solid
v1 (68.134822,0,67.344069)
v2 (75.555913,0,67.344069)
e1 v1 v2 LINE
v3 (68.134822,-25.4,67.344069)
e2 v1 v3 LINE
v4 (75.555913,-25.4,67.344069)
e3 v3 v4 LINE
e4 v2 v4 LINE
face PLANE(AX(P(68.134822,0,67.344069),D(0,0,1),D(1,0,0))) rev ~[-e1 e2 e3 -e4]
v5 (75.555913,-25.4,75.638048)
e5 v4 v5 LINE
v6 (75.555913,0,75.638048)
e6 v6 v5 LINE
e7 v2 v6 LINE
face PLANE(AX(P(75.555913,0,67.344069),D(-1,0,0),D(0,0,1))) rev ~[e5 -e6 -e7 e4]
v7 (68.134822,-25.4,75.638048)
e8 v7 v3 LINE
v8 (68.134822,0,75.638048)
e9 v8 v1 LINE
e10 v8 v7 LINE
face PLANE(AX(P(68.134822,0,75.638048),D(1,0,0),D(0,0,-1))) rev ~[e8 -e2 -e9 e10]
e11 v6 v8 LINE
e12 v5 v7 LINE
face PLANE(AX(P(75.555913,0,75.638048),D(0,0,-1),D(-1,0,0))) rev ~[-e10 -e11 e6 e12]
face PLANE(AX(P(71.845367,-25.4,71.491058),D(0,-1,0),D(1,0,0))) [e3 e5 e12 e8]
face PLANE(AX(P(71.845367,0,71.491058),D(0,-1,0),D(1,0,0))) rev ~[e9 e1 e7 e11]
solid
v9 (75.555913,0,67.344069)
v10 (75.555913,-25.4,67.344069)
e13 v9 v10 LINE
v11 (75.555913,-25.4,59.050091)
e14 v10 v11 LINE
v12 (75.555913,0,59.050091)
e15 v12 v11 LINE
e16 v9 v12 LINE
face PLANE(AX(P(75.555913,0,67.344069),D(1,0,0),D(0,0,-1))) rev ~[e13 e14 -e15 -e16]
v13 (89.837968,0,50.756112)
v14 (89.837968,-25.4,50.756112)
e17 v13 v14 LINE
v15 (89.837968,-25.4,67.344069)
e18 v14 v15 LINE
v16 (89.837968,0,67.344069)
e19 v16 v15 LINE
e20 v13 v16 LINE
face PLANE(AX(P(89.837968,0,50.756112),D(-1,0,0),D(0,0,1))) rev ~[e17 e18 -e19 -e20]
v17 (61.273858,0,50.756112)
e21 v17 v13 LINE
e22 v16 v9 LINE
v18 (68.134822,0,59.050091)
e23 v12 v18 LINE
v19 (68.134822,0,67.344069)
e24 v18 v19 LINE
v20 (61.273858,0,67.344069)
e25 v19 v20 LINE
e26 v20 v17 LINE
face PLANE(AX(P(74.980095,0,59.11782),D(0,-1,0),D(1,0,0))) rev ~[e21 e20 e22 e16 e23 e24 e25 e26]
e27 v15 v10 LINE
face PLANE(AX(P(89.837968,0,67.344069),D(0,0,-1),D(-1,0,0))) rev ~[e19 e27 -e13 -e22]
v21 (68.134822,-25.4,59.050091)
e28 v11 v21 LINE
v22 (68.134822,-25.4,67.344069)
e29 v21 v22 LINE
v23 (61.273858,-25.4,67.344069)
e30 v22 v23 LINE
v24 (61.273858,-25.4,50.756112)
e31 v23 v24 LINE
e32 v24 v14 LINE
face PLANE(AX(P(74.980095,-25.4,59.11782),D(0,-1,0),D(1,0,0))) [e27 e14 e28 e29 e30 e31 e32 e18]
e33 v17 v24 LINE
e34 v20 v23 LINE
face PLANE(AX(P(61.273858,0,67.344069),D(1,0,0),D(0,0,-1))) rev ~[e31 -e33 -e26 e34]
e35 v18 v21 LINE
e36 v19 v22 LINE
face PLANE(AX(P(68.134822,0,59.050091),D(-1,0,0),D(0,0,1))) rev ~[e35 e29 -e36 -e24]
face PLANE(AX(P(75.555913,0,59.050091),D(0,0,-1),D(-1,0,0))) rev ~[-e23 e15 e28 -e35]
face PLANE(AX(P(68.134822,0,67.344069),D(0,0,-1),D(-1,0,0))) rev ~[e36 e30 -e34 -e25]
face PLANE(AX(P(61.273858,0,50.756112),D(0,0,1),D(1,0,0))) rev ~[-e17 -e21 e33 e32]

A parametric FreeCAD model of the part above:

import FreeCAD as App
import Part
import Sketcher
from FreeCAD import Vector


def add_polygon(sketch, points):
    """Adds a closed chain of lines whose ends are joined by coincident constraints."""
    first, n = sketch.GeometryCount, len(points)
    for a, b in zip(points, points[1:] + points[:1]):
        sketch.addGeometry(Part.LineSegment(App.Vector(*a, 0), App.Vector(*b, 0)), False)
    for i in range(n):
        sketch.addConstraint(Sketcher.Constraint("Coincident", first + i, 2, first + (i + 1) % n, 1))

doc = App.newDocument("Part")
params = doc.addObject("Spreadsheet::Sheet", "Params")
for row, (alias, value) in enumerate([
    ("pad1_length", "1 in"),
], start=1):
    params.set(f"A{row}", alias)
    params.set(f"B{row}", "=" + value)
    params.setAlias(f"B{row}", alias)

body = doc.addObject("PartDesign::Body", "Body")
body.AllowCompound = True

# Sketch on XZ plane
sketch1 = doc.addObject("Sketcher::SketchObject", "Sketch")
body.addObject(sketch1)
sketch1.AttachmentSupport = (doc.XZ_Plane, [""])
sketch1.MapMode = "FlatFace"
add_polygon(sketch1, [(89.837968, 50.756112), (89.837968, 67.344069), (75.555913, 67.344069), (75.555913, 59.050091), (68.134822, 59.050091), (68.134822, 67.344069), (61.273858, 67.344069), (61.273858, 50.756112)])  # lines 0-7
add_polygon(sketch1, [(75.555913, 67.344069), (75.555913, 75.638048), (68.134822, 75.638048), (68.134822, 67.344069)])  # lines 8-11
sketch1.addConstraint(Sketcher.Constraint("Vertical", 0))
sketch1.addConstraint(Sketcher.Constraint("Horizontal", 1))
sketch1.addConstraint(Sketcher.Constraint("Vertical", 2))
sketch1.addConstraint(Sketcher.Constraint("Horizontal", 3))
sketch1.addConstraint(Sketcher.Constraint("Vertical", 4))
sketch1.addConstraint(Sketcher.Constraint("Horizontal", 5))
sketch1.addConstraint(Sketcher.Constraint("Vertical", 6))
sketch1.addConstraint(Sketcher.Constraint("Horizontal", 7))
sketch1.addConstraint(Sketcher.Constraint("Vertical", 8))
sketch1.addConstraint(Sketcher.Constraint("Horizontal", 9))
sketch1.addConstraint(Sketcher.Constraint("Vertical", 10))
sketch1.addConstraint(Sketcher.Constraint("Horizontal", 11))
sketch1.addConstraint(Sketcher.Constraint("Coincident", 10, 2, 4, 2))
sketch1.addConstraint(Sketcher.Constraint("Coincident", 11, 2, 1, 2))
sketch1.addConstraint(Sketcher.Constraint("Equal", 4, 8))
sketch1.addConstraint(Sketcher.Constraint("DistanceX", 3, 2, 3, 1, 7.421091))
sketch1.addConstraint(Sketcher.Constraint("DistanceX", 7, 1, 7, 2, 28.56411))
sketch1.addConstraint(Sketcher.Constraint("DistanceY", 2, 2, 2, 1, 8.293978))
sketch1.addConstraint(Sketcher.Constraint("DistanceX", 1, 2, 1, 1, 14.282055))
sketch1.addConstraint(Sketcher.Constraint("DistanceY", 0, 1, 0, 2, 16.587957))
sketch1.addConstraint(Sketcher.Constraint("DistanceX", -1, 1, 0, 2, 89.837968))
sketch1.addConstraint(Sketcher.Constraint("DistanceY", -1, 1, 0, 2, 67.344069))
pad1 = doc.addObject("PartDesign::Pad", "Pad")
body.addObject(pad1)
pad1.Profile = sketch1
pad1.setExpression("Length", "Params.pad1_length")

doc.recompute()
